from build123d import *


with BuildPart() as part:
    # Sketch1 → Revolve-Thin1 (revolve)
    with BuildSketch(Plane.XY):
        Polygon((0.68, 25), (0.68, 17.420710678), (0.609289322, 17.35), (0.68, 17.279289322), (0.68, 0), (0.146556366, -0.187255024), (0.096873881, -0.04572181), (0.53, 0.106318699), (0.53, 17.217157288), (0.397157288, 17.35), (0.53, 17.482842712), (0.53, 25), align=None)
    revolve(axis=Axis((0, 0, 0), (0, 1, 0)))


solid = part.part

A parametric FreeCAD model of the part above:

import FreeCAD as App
import Part
import Sketcher
from FreeCAD import Vector
Q = App.Units.Quantity

doc = App.newDocument("Part")
params = doc.addObject("Spreadsheet::Sheet", "Params")
for row, (alias, value) in enumerate([
    ("sketch1_length", "0.1 mm"),
    ("sketch1_width", "0.15 mm"),
    ("sketch1_length2", "0.15 mm"),
    ("revolution_angle", "360 deg"),
], start=1):
    params.set(f"A{row}", alias)
    params.set(f"B{row}", "=" + value)
    params.setAlias(f"B{row}", alias)

body = doc.addObject("PartDesign::Body", "Body")

sketch1 = body.newObject("Sketcher::SketchObject", "Sketch")
sketch1.AttachmentSupport = (doc.getObject("XY_Plane"), [""])
sketch1.MapMode = "FlatFace"
sketch1.addGeometry(Part.LineSegment(Vector(0.68, 17.42, 0), Vector(0.68, 25, 0)), False)
sketch1.addGeometry(Part.LineSegment(Vector(0.68, 25, 0), Vector(0.53, 25, 0)), False)
sketch1.addGeometry(Part.LineSegment(Vector(0.53, 25, 0), Vector(0.53, 17.48, 0)), False)
sketch1.addGeometry(Part.LineSegment(Vector(0.53, 17.48, 0), Vector(0.4, 17.35, 0)), False)
sketch1.addGeometry(Part.LineSegment(Vector(0.4, 17.35, 0), Vector(0.53, 17.22, 0)), False)
sketch1.addGeometry(Part.LineSegment(Vector(0.53, 17.22, 0), Vector(0.53, 0.11, 0)), False)
sketch1.addGeometry(Part.LineSegment(Vector(0.53, 0.11, 0), Vector(0.1, -0.05, 0)), False)
sketch1.addGeometry(Part.LineSegment(Vector(0.1, -0.05, 0), Vector(0.15, -0.19, 0)), False)
sketch1.addGeometry(Part.LineSegment(Vector(0.15, -0.19, 0), Vector(0.68, 0, 0)), False)
sketch1.addGeometry(Part.LineSegment(Vector(0.68, 0, 0), Vector(0.68, 17.28, 0)), False)
sketch1.addGeometry(Part.LineSegment(Vector(0.68, 17.28, 0), Vector(0.61, 17.35, 0)), False)
sketch1.addGeometry(Part.LineSegment(Vector(0.61, 17.35, 0), Vector(0.68, 17.42, 0)), False)
sketch1.addConstraint(Sketcher.Constraint("Coincident", 0, 2, 1, 1))
sketch1.addConstraint(Sketcher.Constraint("Coincident", 1, 2, 2, 1))
sketch1.addConstraint(Sketcher.Constraint("Coincident", 2, 2, 3, 1))
sketch1.addConstraint(Sketcher.Constraint("Coincident", 3, 2, 4, 1))
sketch1.addConstraint(Sketcher.Constraint("Coincident", 4, 2, 5, 1))
sketch1.addConstraint(Sketcher.Constraint("Coincident", 5, 2, 6, 1))
sketch1.addConstraint(Sketcher.Constraint("Coincident", 6, 2, 7, 1))
sketch1.addConstraint(Sketcher.Constraint("Coincident", 7, 2, 8, 1))
sketch1.addConstraint(Sketcher.Constraint("Coincident", 8, 2, 9, 1))
sketch1.addConstraint(Sketcher.Constraint("Coincident", 9, 2, 10, 1))
sketch1.addConstraint(Sketcher.Constraint("Coincident", 10, 2, 11, 1))
sketch1.addConstraint(Sketcher.Constraint("Coincident", 11, 2, 0, 1))
sketch1.addConstraint(Sketcher.Constraint("Vertical", 0))
sketch1.addConstraint(Sketcher.Constraint("Horizontal", 1))
sketch1.addConstraint(Sketcher.Constraint("Vertical", 2))
sketch1.addConstraint(Sketcher.Constraint("Vertical", 5))
sketch1.addConstraint(Sketcher.Constraint("Vertical", 9))
sketch1.addConstraint(Sketcher.Constraint("PointOnObject", 8, 2, -1))
sketch1.addConstraint(Sketcher.Constraint("Perpendicular", 3, 4))
sketch1.addConstraint(Sketcher.Constraint("Perpendicular", 6, 7))
sketch1.addConstraint(Sketcher.Constraint("Perpendicular", 7, 8))
sketch1.addConstraint(Sketcher.Constraint("Parallel", 4, 10))
sketch1.addConstraint(Sketcher.Constraint("Perpendicular", 10, 11))
sketch1.addConstraint(Sketcher.Constraint("Horizontal", 3, 2, 10, 2))
sketch1.addConstraint(Sketcher.Constraint("Vertical", 2, 2, 4, 2))
sketch1.addConstraint(Sketcher.Constraint("Vertical", 0, 2, 8, 2))
sketch1.addConstraint(Sketcher.Constraint("Equal", 3, 4))
sketch1.addConstraint(Sketcher.Constraint("DistanceY", -1, 1, 0, 2, Q("25 mm")))
sketch1.addConstraint(Sketcher.Constraint("Distance", 10, Q("0.1 mm")))
sketch1.addConstraint(Sketcher.Constraint("DistanceX", 1, 2, 1, 1, Q("0.15 mm")))
sketch1.addConstraint(Sketcher.Constraint("Distance", 7, Q("0.15 mm")))
sketch1.addConstraint(Sketcher.Constraint("DistanceX", -1, 1, 0, 2, Q("0.68 mm")))
sketch1.addConstraint(Sketcher.Constraint("DistanceY", -1, 1, 3, 2, Q("17.35 mm")))
sketch1.addConstraint(Sketcher.Constraint("DistanceY", 5, 2, 5, 1, Q("17.110839 mm")))
sketch1.addConstraint(Sketcher.Constraint("DistanceX", 7, 2, 3, 2, Q("0.250601 mm")))
sketch1.addConstraint(Sketcher.Constraint("DistanceY", 2, 2, 2, 1, Q("7.517157 mm")))
sketch1.setExpression("Constraints[28]", "Params.sketch1_length")
sketch1.setExpression("Constraints[29]", "Params.sketch1_width")
sketch1.setExpression("Constraints[30]", "Params.sketch1_length2")
revolution = body.newObject("PartDesign::Revolution", "Revolution")
revolution.Profile = sketch1
revolution.ReferenceAxis = (sketch1, ["V_Axis"])
revolution.setExpression("Angle", "Params.revolution_angle")

doc.recompute()
